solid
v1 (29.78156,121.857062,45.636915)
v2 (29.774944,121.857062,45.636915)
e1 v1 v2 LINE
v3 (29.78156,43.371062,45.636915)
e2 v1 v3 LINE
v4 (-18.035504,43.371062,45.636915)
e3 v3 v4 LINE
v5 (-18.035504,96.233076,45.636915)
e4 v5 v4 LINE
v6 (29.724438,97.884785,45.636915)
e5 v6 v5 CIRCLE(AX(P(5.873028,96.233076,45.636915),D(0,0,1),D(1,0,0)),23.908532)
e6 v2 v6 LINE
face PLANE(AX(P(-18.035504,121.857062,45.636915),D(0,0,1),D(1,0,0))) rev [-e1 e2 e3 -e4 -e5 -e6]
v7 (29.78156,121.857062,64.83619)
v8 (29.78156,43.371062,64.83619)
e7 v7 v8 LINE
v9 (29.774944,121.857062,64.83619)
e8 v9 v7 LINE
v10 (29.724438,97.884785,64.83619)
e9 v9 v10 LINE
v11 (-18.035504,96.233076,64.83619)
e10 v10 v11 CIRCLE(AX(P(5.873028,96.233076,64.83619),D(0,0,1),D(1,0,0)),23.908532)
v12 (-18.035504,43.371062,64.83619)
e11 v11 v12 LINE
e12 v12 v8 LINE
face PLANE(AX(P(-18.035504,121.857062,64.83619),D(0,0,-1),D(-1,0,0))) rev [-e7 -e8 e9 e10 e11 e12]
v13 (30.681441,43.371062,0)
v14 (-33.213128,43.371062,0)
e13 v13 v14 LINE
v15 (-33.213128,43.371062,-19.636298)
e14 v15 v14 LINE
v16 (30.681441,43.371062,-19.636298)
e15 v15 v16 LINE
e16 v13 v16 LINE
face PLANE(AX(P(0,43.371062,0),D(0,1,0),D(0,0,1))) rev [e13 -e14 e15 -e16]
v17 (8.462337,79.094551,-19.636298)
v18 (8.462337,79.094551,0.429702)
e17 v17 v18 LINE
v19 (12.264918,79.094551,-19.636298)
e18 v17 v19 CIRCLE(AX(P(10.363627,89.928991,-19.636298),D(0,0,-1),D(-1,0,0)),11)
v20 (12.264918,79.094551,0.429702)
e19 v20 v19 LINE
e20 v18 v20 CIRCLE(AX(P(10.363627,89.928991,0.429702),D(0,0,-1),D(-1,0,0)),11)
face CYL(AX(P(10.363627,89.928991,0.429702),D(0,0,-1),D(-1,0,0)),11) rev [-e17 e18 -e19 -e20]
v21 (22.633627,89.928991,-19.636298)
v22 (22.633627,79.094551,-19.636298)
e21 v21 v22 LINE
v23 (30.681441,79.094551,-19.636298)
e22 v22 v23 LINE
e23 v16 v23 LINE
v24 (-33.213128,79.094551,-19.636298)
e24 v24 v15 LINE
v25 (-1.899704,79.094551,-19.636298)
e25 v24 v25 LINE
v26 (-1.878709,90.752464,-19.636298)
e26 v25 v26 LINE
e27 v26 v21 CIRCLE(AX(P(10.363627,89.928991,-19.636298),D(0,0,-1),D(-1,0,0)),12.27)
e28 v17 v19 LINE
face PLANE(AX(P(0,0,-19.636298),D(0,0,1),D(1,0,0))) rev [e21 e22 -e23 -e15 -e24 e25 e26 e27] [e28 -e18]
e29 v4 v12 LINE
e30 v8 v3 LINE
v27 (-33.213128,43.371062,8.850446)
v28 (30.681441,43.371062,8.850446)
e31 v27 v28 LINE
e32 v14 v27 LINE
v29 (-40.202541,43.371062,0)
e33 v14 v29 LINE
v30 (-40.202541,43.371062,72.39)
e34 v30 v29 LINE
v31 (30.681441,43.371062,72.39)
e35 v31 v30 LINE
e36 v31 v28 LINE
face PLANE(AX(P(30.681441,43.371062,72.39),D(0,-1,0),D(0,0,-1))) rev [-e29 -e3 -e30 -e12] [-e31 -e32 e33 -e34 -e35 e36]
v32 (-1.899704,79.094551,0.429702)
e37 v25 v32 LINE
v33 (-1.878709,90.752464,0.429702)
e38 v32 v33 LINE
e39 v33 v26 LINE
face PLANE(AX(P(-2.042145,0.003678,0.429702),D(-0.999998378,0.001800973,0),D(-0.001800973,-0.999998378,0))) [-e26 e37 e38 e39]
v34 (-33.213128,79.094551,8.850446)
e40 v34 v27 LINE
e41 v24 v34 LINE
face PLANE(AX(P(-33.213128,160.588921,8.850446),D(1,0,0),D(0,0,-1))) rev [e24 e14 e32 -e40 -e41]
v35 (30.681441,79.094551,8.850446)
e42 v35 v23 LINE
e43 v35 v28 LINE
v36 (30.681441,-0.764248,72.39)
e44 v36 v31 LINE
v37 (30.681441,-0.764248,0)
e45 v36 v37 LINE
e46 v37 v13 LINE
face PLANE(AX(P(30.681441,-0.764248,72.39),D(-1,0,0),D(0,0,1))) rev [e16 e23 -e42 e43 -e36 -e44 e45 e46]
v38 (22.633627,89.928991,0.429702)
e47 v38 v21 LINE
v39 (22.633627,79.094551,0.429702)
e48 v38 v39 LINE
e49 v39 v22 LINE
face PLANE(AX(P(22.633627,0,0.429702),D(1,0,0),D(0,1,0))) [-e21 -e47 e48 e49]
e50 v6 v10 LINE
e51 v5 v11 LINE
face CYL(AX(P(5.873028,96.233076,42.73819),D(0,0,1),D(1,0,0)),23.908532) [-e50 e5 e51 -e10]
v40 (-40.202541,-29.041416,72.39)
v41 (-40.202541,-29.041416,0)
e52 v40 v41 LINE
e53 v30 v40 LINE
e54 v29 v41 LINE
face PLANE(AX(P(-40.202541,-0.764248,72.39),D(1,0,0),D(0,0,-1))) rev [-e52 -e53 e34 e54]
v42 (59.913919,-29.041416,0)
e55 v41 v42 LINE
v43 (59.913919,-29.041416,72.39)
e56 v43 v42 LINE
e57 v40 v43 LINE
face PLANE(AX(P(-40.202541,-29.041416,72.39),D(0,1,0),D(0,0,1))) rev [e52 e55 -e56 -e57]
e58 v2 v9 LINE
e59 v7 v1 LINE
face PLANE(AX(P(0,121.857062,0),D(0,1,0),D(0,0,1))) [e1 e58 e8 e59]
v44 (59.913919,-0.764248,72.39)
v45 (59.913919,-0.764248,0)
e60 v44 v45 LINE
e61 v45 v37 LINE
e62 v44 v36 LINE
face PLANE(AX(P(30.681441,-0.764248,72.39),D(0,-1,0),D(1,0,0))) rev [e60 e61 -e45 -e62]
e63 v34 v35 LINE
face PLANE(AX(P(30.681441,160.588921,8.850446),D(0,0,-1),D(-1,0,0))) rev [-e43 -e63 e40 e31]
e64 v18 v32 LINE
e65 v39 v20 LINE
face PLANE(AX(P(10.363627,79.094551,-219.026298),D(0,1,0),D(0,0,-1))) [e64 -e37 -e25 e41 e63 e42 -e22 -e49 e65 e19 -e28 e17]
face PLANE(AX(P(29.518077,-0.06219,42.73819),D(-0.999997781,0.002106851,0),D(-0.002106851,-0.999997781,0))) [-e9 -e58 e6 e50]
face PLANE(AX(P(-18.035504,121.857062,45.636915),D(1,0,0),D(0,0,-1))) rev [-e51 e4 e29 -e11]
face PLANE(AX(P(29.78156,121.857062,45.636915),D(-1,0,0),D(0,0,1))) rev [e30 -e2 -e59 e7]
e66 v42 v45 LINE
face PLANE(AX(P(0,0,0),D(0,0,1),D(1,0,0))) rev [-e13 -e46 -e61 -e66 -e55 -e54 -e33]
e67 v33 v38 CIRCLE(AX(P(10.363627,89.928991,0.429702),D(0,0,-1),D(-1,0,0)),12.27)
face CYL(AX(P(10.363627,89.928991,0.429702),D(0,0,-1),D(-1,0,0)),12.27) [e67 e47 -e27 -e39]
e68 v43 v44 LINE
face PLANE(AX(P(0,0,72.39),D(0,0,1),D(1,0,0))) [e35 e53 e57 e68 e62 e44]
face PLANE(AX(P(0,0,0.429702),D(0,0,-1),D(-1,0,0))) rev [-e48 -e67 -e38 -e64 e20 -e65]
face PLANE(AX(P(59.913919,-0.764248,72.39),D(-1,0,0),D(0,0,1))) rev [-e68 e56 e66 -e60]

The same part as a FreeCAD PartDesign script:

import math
import FreeCAD as App
import Part
import Sketcher
from FreeCAD import Vector
Q = App.Units.Quantity

doc = App.newDocument("Part")
body = doc.addObject("PartDesign::Body", "Body")

sketch1 = body.newObject("Sketcher::SketchObject", "Sketch")
sketch1.AttachmentSupport = (doc.getObject("XY_Plane"), [""])
sketch1.MapMode = "FlatFace"
sketch1.addGeometry(Part.LineSegment(Vector(60, -1, 0), Vector(31, -1, 0)), False)
sketch1.addGeometry(Part.LineSegment(Vector(31, -1, 0), Vector(31, 43, 0)), False)
sketch1.addGeometry(Part.LineSegment(Vector(31, 43, 0), Vector(-40, 43, 0)), False)
sketch1.addGeometry(Part.LineSegment(Vector(-40, 43, 0), Vector(-40, -29, 0)), False)
sketch1.addGeometry(Part.LineSegment(Vector(-40, -29, 0), Vector(60, -29, 0)), False)
sketch1.addGeometry(Part.LineSegment(Vector(60, -29, 0), Vector(60, -1, 0)), False)
sketch1.addConstraint(Sketcher.Constraint("Coincident", 0, 2, 1, 1))
sketch1.addConstraint(Sketcher.Constraint("Coincident", 1, 2, 2, 1))
sketch1.addConstraint(Sketcher.Constraint("Coincident", 2, 2, 3, 1))
sketch1.addConstraint(Sketcher.Constraint("Coincident", 3, 2, 4, 1))
sketch1.addConstraint(Sketcher.Constraint("Coincident", 4, 2, 5, 1))
sketch1.addConstraint(Sketcher.Constraint("Coincident", 5, 2, 0, 1))
sketch1.addConstraint(Sketcher.Constraint("Horizontal", 0))
sketch1.addConstraint(Sketcher.Constraint("Vertical", 1))
sketch1.addConstraint(Sketcher.Constraint("Horizontal", 2))
sketch1.addConstraint(Sketcher.Constraint("Vertical", 3))
sketch1.addConstraint(Sketcher.Constraint("Horizontal", 4))
sketch1.addConstraint(Sketcher.Constraint("Vertical", 5))
sketch1.addConstraint(Sketcher.Constraint("DistanceX", 4, 1, 4, 2, Q("100.11646 mm")))
sketch1.addConstraint(Sketcher.Constraint("DistanceY", 1, 1, 1, 2, Q("44.13531 mm")))
sketch1.addConstraint(Sketcher.Constraint("DistanceY", 5, 1, 5, 2, Q("28.277168 mm")))
sketch1.addConstraint(Sketcher.Constraint("DistanceX", 0, 2, 0, 1, Q("29.232478 mm")))
sketch1.addConstraint(Sketcher.Constraint("DistanceX", -1, 1, 0, 2, Q("30.681441 mm")))
sketch1.addConstraint(Sketcher.Constraint("DistanceY", -1, 1, 1, 2, Q("43.371062 mm")))
pad1 = body.newObject("PartDesign::Pad", "Pad")
pad1.Profile = sketch1
pad1.Length = Q("2.85 in")

sketch2 = body.newObject("Sketcher::SketchObject", "Sketch001")
sketch2.AttachmentSupport = (doc.getObject("XZ_Plane"), [""])
sketch2.MapMode = "FlatFace"
sketch2.AttachmentOffset = App.Placement(Vector(0, 0, -43.371062), App.Rotation())
sketch2.addGeometry(Part.LineSegment(Vector(-33, -42, 0), Vector(-33, 9, 0)), False)
sketch2.addGeometry(Part.LineSegment(Vector(-33, 9, 0), Vector(31, 9, 0)), False)
sketch2.addGeometry(Part.LineSegment(Vector(31, 9, 0), Vector(31, -42, 0)), False)
sketch2.addGeometry(Part.LineSegment(Vector(31, -42, 0), Vector(-33, -42, 0)), False)
sketch2.addConstraint(Sketcher.Constraint("Coincident", 0, 2, 1, 1))
sketch2.addConstraint(Sketcher.Constraint("Coincident", 1, 2, 2, 1))
sketch2.addConstraint(Sketcher.Constraint("Coincident", 2, 2, 3, 1))
sketch2.addConstraint(Sketcher.Constraint("Coincident", 3, 2, 0, 1))
sketch2.addConstraint(Sketcher.Constraint("Vertical", 0))
sketch2.addConstraint(Sketcher.Constraint("Horizontal", 1))
sketch2.addConstraint(Sketcher.Constraint("Vertical", 2))
sketch2.addConstraint(Sketcher.Constraint("Horizontal", 3))
sketch2.addConstraint(Sketcher.Constraint("DistanceX", 1, 1, 1, 2, Q("63.89457 mm")))
sketch2.addConstraint(Sketcher.Constraint("DistanceY", 0, 1, 0, 2, Q("50.584744 mm")))
sketch2.addConstraint(Sketcher.Constraint("DistanceX", 0, 2, -1, 1, Q("33.213128 mm")))
sketch2.addConstraint(Sketcher.Constraint("DistanceY", -1, 1, 0, 2, Q("8.850446 mm")))
pad2 = body.newObject("PartDesign::Pad", "Pad001")
pad2.Profile = sketch2
pad2.Length = 35.723489
pad2.Reversed = True

sketch3 = body.newObject("Sketcher::SketchObject", "Sketch002")
sketch3.AttachmentSupport = (doc.getObject("XZ_Plane"), [""])
sketch3.MapMode = "FlatFace"
sketch3.AttachmentOffset = App.Placement(Vector(0, 0, -43.371062), App.Rotation())
sketch3.addGeometry(Part.LineSegment(Vector(-18, 46, 0), Vector(-18, 65, 0)), False)
sketch3.addGeometry(Part.LineSegment(Vector(-18, 65, 0), Vector(30, 65, 0)), False)
sketch3.addGeometry(Part.LineSegment(Vector(30, 65, 0), Vector(30, 46, 0)), False)
sketch3.addGeometry(Part.LineSegment(Vector(30, 46, 0), Vector(-18, 46, 0)), False)
sketch3.addConstraint(Sketcher.Constraint("Coincident", 0, 2, 1, 1))
sketch3.addConstraint(Sketcher.Constraint("Coincident", 1, 2, 2, 1))
sketch3.addConstraint(Sketcher.Constraint("Coincident", 2, 2, 3, 1))
sketch3.addConstraint(Sketcher.Constraint("Coincident", 3, 2, 0, 1))
sketch3.addConstraint(Sketcher.Constraint("Vertical", 0))
sketch3.addConstraint(Sketcher.Constraint("Horizontal", 1))
sketch3.addConstraint(Sketcher.Constraint("Vertical", 2))
sketch3.addConstraint(Sketcher.Constraint("Horizontal", 3))
sketch3.addConstraint(Sketcher.Constraint("DistanceX", 1, 1, 1, 2, Q("47.817063 mm")))
sketch3.addConstraint(Sketcher.Constraint("DistanceY", 0, 1, 0, 2, Q("19.199275 mm")))
sketch3.addConstraint(Sketcher.Constraint("DistanceY", -1, 1, 0, 2, Q("64.83619 mm")))
sketch3.addConstraint(Sketcher.Constraint("DistanceX", -1, 1, 1, 2, Q("29.78156 mm")))
pad3 = body.newObject("PartDesign::Pad", "Pad002")
pad3.Profile = sketch3
pad3.Length = Q("3.09 in")
pad3.Reversed = True

sketch4 = body.newObject("Sketcher::SketchObject", "Sketch003")
sketch4.AttachmentSupport = (doc.getObject("XY_Plane"), [""])
sketch4.MapMode = "FlatFace"
sketch4.AttachmentOffset = App.Placement(Vector(0, 0, 64.83619), App.Rotation())
sketch4.addGeometry(Part.LineSegment(Vector(-18, 122, 0), Vector(-18, 96, 0)), False)
sketch4.addGeometry(Part.ArcOfCircle(Part.Circle(Vector(6, 96, 0), Vector(0, 0, 1), 24), math.radians(4), math.radians(180)), False)
sketch4.addGeometry(Part.LineSegment(Vector(30, 98, 0), Vector(30, 122, 0)), False)
sketch4.addGeometry(Part.LineSegment(Vector(30, 122, 0), Vector(-18, 122, 0)), False)
sketch4.addConstraint(Sketcher.Constraint("Tangent", 0, 2, 1, 2))
sketch4.addConstraint(Sketcher.Constraint("Coincident", 1, 1, 2, 1))
sketch4.addConstraint(Sketcher.Constraint("Coincident", 2, 2, 3, 1))
sketch4.addConstraint(Sketcher.Constraint("Coincident", 3, 2, 0, 1))
sketch4.addConstraint(Sketcher.Constraint("Vertical", 0))
sketch4.addConstraint(Sketcher.Constraint("Horizontal", 3))
sketch4.addConstraint(Sketcher.Constraint("Radius", 1, Q("23.908532 mm")))
sketch4.addConstraint(Sketcher.Constraint("Distance", 2, Q("23.97233 mm")))
sketch4.addConstraint(Sketcher.Constraint("DistanceX", 3, 2, 3, 1, Q("47.810447 mm")))
sketch4.addConstraint(Sketcher.Constraint("DistanceY", 0, 2, 0, 1, Q("25.623986 mm")))
sketch4.addConstraint(Sketcher.Constraint("DistanceY", -1, 1, 2, 2, Q("121.857062 mm")))
sketch4.addConstraint(Sketcher.Constraint("DistanceX", -1, 1, 1, 3, Q("5.873028 mm")))
pocket1 = body.newObject("PartDesign::Pocket", "Pocket")
pocket1.Profile = sketch4
pocket1.Length = Q("0.87 in")

sketch5 = body.newObject("Sketcher::SketchObject", "Sketch004")
sketch5.AttachmentSupport = (doc.getObject("XY_Plane"), [""])
sketch5.MapMode = "FlatFace"
sketch5.AttachmentOffset = App.Placement(Vector(0, 0, -41.734298), App.Rotation())
sketch5.addGeometry(Part.LineSegment(Vector(34, 80, 0), Vector(34, 37, 0)), False)
sketch5.addGeometry(Part.LineSegment(Vector(34, 37, 0), Vector(-51, 37, 0)), False)
sketch5.addGeometry(Part.LineSegment(Vector(-51, 37, 0), Vector(-51, 80, 0)), False)
sketch5.addGeometry(Part.LineSegment(Vector(-51, 80, 0), Vector(34, 80, 0)), False)
sketch5.addConstraint(Sketcher.Constraint("Coincident", 0, 2, 1, 1))
sketch5.addConstraint(Sketcher.Constraint("Coincident", 1, 2, 2, 1))
sketch5.addConstraint(Sketcher.Constraint("Coincident", 2, 2, 3, 1))
sketch5.addConstraint(Sketcher.Constraint("Coincident", 3, 2, 0, 1))
sketch5.addConstraint(Sketcher.Constraint("Vertical", 0))
sketch5.addConstraint(Sketcher.Constraint("Horizontal", 1))
sketch5.addConstraint(Sketcher.Constraint("Vertical", 2))
sketch5.addConstraint(Sketcher.Constraint("Horizontal", 3))
sketch5.addConstraint(Sketcher.Constraint("DistanceX", 1, 2, 1, 1, Q("85.131499 mm")))
sketch5.addConstraint(Sketcher.Constraint("DistanceY", 0, 2, 0, 1, Q("43.590498 mm")))
sketch5.addConstraint(Sketcher.Constraint("DistanceX", -1, 1, 0, 2, Q("33.681441 mm")))
sketch5.addConstraint(Sketcher.Constraint("DistanceY", -1, 1, 2, 2, Q("80.32625 mm")))
pocket2 = body.newObject("PartDesign::Pocket", "Pocket001")
pocket2.Profile = sketch5
pocket2.Length = Q("0.87 in")
pocket2.Reversed = True

sketch6 = body.newObject("Sketcher::SketchObject", "Sketch005")
sketch6.AttachmentSupport = (doc.getObject("XY_Plane"), [""])
sketch6.MapMode = "FlatFace"
sketch6.AttachmentOffset = App.Placement(Vector(0, 0, -19.636298), App.Rotation())
sketch6.addGeometry(Part.ArcOfCircle(Part.Circle(Vector(10.4, 89.9, 0), Vector(0, 0, 1), 12.3), math.radians(0), math.radians(176)), False)
sketch6.addGeometry(Part.LineSegment(Vector(22.6, 89.9, 0), Vector(22.6, 75.4, 0)), False)
sketch6.addGeometry(Part.LineSegment(Vector(22.6, 75.4, 0), Vector(-1.9, 75.4, 0)), False)
sketch6.addGeometry(Part.LineSegment(Vector(-1.9, 75.4, 0), Vector(-1.9, 79.1, 0)), False)
sketch6.addGeometry(Part.LineSegment(Vector(-1.9, 79.1, 0), Vector(-1.9, 89.1, 0)), False)
sketch6.addGeometry(Part.LineSegment(Vector(-1.9, 89.1, 0), Vector(-1.9, 90.8, 0)), False)
sketch6.addGeometry(Part.ArcOfCircle(Part.Circle(Vector(10.4, 89.9, 0), Vector(0, 0, 1), 11), math.radians(-80), math.radians(180)), False)
sketch6.addGeometry(Part.ArcOfCircle(Part.Circle(Vector(10.4, 89.9, 0), Vector(0, 0, 1), 11), math.radians(180), math.radians(260)), False)
sketch6.addGeometry(Part.ArcOfCircle(Part.Circle(Vector(10.4, 89.9, 0), Vector(0, 0, 1), 11), math.radians(-99.95), math.radians(-80.05)), False)
sketch6.addConstraint(Sketcher.Constraint("Tangent", 0, 1, 1, 1))
sketch6.addConstraint(Sketcher.Constraint("Coincident", 1, 2, 2, 1))
sketch6.addConstraint(Sketcher.Constraint("Coincident", 2, 2, 3, 1))
sketch6.addConstraint(Sketcher.Constraint("Coincident", 3, 2, 4, 1))
sketch6.addConstraint(Sketcher.Constraint("Coincident", 4, 2, 5, 1))
sketch6.addConstraint(Sketcher.Constraint("Coincident", 5, 2, 0, 2))
sketch6.addConstraint(Sketcher.Constraint("Tangent", 6, 2, 7, 1))
sketch6.addConstraint(Sketcher.Constraint("Tangent", 7, 2, 8, 1))
sketch6.addConstraint(Sketcher.Constraint("Tangent", 8, 2, 6, 1))
sketch6.addConstraint(Sketcher.Constraint("Vertical", 1))
sketch6.addConstraint(Sketcher.Constraint("Horizontal", 2))
sketch6.addConstraint(Sketcher.Constraint("Coincident", 6, 3, 0, 3))
sketch6.addConstraint(Sketcher.Constraint("Parallel", 3, 4))
sketch6.addConstraint(Sketcher.Constraint("Parallel", 4, 5))
sketch6.addConstraint(Sketcher.Constraint("Horizontal", 0, 1, 6, 2))
sketch6.addConstraint(Sketcher.Constraint("Horizontal", 3, 2, 7, 2))
sketch6.addConstraint(Sketcher.Constraint("Horizontal", 7, 2, 8, 2))
sketch6.addConstraint(Sketcher.Constraint("Radius", 0, Q("12.27 mm")))
sketch6.addConstraint(Sketcher.Constraint("Radius", 6, Q("11 mm")))
sketch6.addConstraint(Sketcher.Constraint("DistanceX", 2, 2, 2, 1, Q("24.54 mm")))
sketch6.addConstraint(Sketcher.Constraint("DistanceY", 1, 2, 1, 1, Q("14.537026 mm")))
sketch6.addConstraint(Sketcher.Constraint("DistanceY", -1, 1, 0, 3, Q("89.928991 mm")))
sketch6.addConstraint(Sketcher.Constraint("DistanceY", -1, 1, 3, 2, Q("79.094551 mm")))
sketch6.addConstraint(Sketcher.Constraint("DistanceY", -1, 1, 4, 2, Q("89.149621 mm")))
sketch6.addConstraint(Sketcher.Constraint("DistanceX", 5, 2, -1, 1, Q("1.878709 mm")))
sketch6.addConstraint(Sketcher.Constraint("DistanceX", 2, 2, 3, 2, Q("0.006668 mm")))
pad4 = body.newObject("PartDesign::Pad", "Pad003")
pad4.Profile = sketch6
pad4.Length = Q("0.79 in")

doc.recompute()
